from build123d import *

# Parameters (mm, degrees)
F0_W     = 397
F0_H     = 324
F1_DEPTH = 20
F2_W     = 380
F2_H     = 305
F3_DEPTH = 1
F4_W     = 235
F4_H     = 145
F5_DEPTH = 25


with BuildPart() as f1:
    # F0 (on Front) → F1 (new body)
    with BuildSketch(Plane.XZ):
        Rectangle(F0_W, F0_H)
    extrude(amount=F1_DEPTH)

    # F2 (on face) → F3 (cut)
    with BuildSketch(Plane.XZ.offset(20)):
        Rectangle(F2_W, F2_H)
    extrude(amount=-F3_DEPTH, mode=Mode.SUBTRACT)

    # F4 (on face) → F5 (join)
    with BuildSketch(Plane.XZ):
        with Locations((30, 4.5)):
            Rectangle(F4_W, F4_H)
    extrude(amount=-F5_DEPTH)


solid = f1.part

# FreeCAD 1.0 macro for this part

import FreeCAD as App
import Part
import Sketcher


def add_polygon(sketch, points):
    """Adds a closed chain of lines whose ends are joined by coincident constraints."""
    first, n = sketch.GeometryCount, len(points)
    for a, b in zip(points, points[1:] + points[:1]):
        sketch.addGeometry(Part.LineSegment(App.Vector(*a, 0), App.Vector(*b, 0)), False)
    for i in range(n):
        sketch.addConstraint(Sketcher.Constraint("Coincident", first + i, 2, first + (i + 1) % n, 1))

doc = App.newDocument("Part")
body = doc.addObject("PartDesign::Body", "Body")

# Sketch on XZ plane
sketch1 = body.newObject("Sketcher::SketchObject", "Sketch")
sketch1.AttachmentSupport = (doc.getObject("XZ_Plane"), [""])
sketch1.MapMode = "FlatFace"
add_polygon(sketch1, [(-198, 162), (-198, -162), (198, -162), (198, 162)])  # lines 0-3
sketch1.addConstraint(Sketcher.Constraint("Vertical", 0))
sketch1.addConstraint(Sketcher.Constraint("Horizontal", 1))
sketch1.addConstraint(Sketcher.Constraint("Vertical", 2))
sketch1.addConstraint(Sketcher.Constraint("Horizontal", 3))
sketch1.addConstraint(Sketcher.Constraint("Symmetric", 0, 2, 2, 2, -1, 1))
sketch1.addConstraint(Sketcher.Constraint("DistanceX", 1, 1, 1, 2, 397.0))
sketch1.addConstraint(Sketcher.Constraint("DistanceY", 0, 2, 0, 1, 324.0))
pad1 = body.newObject("PartDesign::Pad", "Pad")
pad1.Profile = sketch1
pad1.Length = 20

# Sketch on XZ plane
sketch2 = body.newObject("Sketcher::SketchObject", "Sketch001")
sketch2.AttachmentSupport = (doc.getObject("XZ_Plane"), [""])
sketch2.MapMode = "FlatFace"
sketch2.AttachmentOffset = App.Placement(App.Vector(0, 0, 20), App.Rotation())
add_polygon(sketch2, [(-190, 152), (-190, -152), (190, -152), (190, 152)])  # lines 0-3
sketch2.addConstraint(Sketcher.Constraint("Vertical", 0))
sketch2.addConstraint(Sketcher.Constraint("Horizontal", 1))
sketch2.addConstraint(Sketcher.Constraint("Vertical", 2))
sketch2.addConstraint(Sketcher.Constraint("Horizontal", 3))
sketch2.addConstraint(Sketcher.Constraint("Symmetric", 0, 2, 2, 2, -1, 1))
sketch2.addConstraint(Sketcher.Constraint("DistanceX", 1, 1, 1, 2, 380.0))
sketch2.addConstraint(Sketcher.Constraint("DistanceY", 0, 2, 0, 1, 305.0))
pocket1 = body.newObject("PartDesign::Pocket", "Pocket")
pocket1.Profile = sketch2
pocket1.Length = 1

# Sketch on XZ plane
sketch3 = body.newObject("Sketcher::SketchObject", "Sketch002")
sketch3.AttachmentSupport = (doc.getObject("XZ_Plane"), [""])
sketch3.MapMode = "FlatFace"
add_polygon(sketch3, [(-88, 77), (-88, -68), (148, -68), (148, 77)])  # lines 0-3
sketch3.addConstraint(Sketcher.Constraint("Vertical", 0))
sketch3.addConstraint(Sketcher.Constraint("Horizontal", 1))
sketch3.addConstraint(Sketcher.Constraint("Vertical", 2))
sketch3.addConstraint(Sketcher.Constraint("Horizontal", 3))
sketch3.addConstraint(Sketcher.Constraint("DistanceX", 1, 1, 1, 2, 235.0))
sketch3.addConstraint(Sketcher.Constraint("DistanceY", 0, 2, 0, 1, 145.0))
sketch3.addConstraint(Sketcher.Constraint("DistanceY", 0, 2, -1, 1, 68.0))
sketch3.addConstraint(Sketcher.Constraint("DistanceX", 0, 2, -1, 1, 87.5))
pad2 = body.newObject("PartDesign::Pad", "Pad001")
pad2.Profile = sketch3
pad2.Length = 25
pad2.Reversed = True

doc.recompute()
